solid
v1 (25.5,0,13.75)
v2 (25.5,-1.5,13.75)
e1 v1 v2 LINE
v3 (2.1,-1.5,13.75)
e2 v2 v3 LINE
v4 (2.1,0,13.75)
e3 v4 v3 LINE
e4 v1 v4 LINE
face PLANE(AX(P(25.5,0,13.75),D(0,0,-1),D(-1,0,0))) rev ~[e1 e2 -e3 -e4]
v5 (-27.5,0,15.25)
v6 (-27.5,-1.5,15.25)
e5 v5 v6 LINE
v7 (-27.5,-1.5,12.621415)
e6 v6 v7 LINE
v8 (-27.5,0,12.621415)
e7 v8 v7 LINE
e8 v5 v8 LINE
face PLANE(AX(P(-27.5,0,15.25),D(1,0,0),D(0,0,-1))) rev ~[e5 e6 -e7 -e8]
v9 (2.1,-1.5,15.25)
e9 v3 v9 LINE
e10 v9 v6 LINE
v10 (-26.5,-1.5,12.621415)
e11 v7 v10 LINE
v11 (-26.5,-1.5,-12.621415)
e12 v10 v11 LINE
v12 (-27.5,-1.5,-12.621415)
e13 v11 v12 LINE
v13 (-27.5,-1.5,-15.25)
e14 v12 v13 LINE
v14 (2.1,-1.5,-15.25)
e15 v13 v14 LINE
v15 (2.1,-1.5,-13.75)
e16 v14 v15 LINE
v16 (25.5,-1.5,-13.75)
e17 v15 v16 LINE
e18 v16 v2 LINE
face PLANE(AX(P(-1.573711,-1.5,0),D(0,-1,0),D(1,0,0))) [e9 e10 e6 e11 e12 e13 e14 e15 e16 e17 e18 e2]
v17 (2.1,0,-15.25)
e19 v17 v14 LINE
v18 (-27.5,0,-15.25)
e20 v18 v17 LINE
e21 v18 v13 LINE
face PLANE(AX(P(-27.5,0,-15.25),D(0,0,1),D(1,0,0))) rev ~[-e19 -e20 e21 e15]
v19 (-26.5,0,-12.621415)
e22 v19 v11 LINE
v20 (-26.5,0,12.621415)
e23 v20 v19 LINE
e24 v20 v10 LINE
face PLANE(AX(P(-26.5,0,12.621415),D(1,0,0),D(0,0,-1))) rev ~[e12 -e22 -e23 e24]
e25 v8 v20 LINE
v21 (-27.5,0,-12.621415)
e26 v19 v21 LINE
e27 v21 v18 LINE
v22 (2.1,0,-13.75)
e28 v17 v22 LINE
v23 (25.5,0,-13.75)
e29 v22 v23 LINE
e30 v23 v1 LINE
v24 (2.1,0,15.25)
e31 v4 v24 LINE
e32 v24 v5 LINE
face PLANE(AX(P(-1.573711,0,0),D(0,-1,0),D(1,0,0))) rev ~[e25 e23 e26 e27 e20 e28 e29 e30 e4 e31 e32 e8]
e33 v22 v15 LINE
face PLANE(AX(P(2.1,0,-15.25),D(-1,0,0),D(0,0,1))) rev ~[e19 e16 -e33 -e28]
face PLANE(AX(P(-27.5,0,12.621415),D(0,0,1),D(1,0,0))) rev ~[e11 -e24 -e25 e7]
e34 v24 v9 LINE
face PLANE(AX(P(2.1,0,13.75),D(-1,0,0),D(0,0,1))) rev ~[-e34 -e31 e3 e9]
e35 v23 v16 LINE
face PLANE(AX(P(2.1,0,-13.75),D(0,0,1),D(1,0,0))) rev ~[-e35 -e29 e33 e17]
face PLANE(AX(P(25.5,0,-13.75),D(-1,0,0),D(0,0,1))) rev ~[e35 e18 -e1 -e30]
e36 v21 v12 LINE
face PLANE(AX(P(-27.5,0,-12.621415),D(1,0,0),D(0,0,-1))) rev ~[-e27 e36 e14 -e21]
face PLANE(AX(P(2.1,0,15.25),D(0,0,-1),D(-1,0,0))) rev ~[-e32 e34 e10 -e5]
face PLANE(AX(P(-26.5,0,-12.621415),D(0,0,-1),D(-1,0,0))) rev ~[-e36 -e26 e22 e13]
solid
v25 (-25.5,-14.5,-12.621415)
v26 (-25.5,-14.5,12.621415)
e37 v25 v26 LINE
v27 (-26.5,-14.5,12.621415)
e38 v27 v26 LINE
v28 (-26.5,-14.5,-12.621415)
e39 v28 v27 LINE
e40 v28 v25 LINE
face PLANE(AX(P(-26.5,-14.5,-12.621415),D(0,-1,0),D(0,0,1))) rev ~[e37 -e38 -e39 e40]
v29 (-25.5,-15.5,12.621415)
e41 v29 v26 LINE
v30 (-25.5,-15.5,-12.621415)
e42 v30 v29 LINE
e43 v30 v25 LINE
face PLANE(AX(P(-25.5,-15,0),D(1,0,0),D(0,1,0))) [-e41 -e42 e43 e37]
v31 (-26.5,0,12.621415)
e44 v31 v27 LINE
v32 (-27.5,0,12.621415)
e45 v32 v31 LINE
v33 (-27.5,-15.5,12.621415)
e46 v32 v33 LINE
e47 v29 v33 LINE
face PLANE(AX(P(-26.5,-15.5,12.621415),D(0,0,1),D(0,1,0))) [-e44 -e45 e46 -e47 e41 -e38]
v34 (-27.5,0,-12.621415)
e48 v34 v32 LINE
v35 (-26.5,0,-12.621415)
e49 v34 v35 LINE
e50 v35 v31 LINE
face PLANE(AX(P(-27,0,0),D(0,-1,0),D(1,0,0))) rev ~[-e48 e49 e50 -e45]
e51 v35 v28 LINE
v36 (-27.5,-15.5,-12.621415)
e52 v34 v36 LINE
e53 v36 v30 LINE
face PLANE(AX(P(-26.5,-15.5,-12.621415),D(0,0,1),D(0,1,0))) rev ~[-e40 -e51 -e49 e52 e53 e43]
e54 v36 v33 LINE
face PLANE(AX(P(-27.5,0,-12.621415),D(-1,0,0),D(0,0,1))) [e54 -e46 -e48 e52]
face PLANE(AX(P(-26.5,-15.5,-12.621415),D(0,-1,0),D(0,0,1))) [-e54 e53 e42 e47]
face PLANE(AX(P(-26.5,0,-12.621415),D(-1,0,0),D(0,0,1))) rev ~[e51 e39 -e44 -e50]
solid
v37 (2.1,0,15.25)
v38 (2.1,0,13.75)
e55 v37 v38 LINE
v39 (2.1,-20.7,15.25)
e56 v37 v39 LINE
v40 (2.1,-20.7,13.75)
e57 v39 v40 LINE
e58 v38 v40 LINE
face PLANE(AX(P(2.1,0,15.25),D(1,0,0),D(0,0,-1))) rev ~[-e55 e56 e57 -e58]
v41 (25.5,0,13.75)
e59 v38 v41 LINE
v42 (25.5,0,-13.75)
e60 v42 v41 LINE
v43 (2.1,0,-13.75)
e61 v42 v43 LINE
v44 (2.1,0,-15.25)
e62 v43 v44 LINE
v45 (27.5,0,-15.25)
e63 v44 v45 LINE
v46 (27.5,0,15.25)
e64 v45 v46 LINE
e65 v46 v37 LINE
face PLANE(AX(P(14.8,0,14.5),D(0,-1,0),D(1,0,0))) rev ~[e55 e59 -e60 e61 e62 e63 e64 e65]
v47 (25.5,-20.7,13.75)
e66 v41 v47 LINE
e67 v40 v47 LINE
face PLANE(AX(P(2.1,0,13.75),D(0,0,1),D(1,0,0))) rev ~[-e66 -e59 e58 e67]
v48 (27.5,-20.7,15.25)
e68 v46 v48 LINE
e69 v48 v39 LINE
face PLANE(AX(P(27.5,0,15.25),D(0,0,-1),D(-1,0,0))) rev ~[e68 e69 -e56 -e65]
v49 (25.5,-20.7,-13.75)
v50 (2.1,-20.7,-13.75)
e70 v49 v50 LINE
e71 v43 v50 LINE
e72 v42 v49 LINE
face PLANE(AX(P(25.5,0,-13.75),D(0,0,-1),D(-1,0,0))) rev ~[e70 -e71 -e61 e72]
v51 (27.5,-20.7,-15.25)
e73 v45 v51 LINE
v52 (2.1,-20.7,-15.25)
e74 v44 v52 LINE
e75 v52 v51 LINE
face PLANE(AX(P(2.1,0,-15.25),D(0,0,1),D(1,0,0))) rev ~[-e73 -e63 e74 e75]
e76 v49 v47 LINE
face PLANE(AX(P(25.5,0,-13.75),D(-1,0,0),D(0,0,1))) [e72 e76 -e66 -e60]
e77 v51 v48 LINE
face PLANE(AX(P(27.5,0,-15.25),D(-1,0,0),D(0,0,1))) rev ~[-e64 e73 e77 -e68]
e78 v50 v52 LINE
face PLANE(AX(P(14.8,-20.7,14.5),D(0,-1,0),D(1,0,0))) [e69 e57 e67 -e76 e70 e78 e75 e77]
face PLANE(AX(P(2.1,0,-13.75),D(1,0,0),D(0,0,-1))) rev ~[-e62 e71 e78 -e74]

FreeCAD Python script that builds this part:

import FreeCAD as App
import Part
import Sketcher
Q = App.Units.Quantity

doc = App.newDocument("Part")
body = doc.addObject("PartDesign::Body", "Body")

sketch1 = body.newObject("Sketcher::SketchObject", "Sketch")
sketch1.AttachmentSupport = (doc.getObject("XZ_Plane"), [""])
sketch1.MapMode = "FlatFace"
sketch1.addGeometry([
    Part.LineSegment(App.Vector(-27.5, 12.6, 0), App.Vector(-27.5, -12.6, 0)),
    Part.LineSegment(App.Vector(-27.5, -12.6, 0), App.Vector(-26.5, -12.6, 0)),
    Part.LineSegment(App.Vector(-26.5, -12.6, 0), App.Vector(-26.5, 12.6, 0)),
    Part.LineSegment(App.Vector(-26.5, 12.6, 0), App.Vector(-27.5, 12.6, 0)),
], False)
sketch1.addConstraint([
    Sketcher.Constraint("Coincident", 0, 2, 1, 1),
    Sketcher.Constraint("Coincident", 1, 2, 2, 1),
    Sketcher.Constraint("Coincident", 2, 2, 3, 1),
    Sketcher.Constraint("Coincident", 3, 2, 0, 1),
    Sketcher.Constraint("Vertical", 0),
    Sketcher.Constraint("Horizontal", 1),
    Sketcher.Constraint("Vertical", 2),
    Sketcher.Constraint("Horizontal", 3),
    Sketcher.Constraint("DistanceX", 1, 1, 1, 2, Q("1 mm")),
    Sketcher.Constraint("DistanceX", 0, 2, -1, 1, Q("27.5 mm")),
    Sketcher.Constraint("DistanceY", 0, 2, 0, 1, Q("25.24283 mm")),
    Sketcher.Constraint("DistanceY", 0, 2, -1, 1, Q("12.621415 mm")),
])
pad1 = body.newObject("PartDesign::Pad", "Pad")
pad1.Profile = sketch1
pad1.Length = 15.5

sketch2 = body.newObject("Sketcher::SketchObject", "Sketch001")
sketch2.AttachmentSupport = (doc.getObject("YZ_Plane"), [""])
sketch2.MapMode = "FlatFace"
sketch2.AttachmentOffset = App.Placement(App.Vector(0, 0, -26.5), App.Rotation())
sketch2.addGeometry([
    Part.LineSegment(App.Vector(-15.5, 12.6, 0), App.Vector(-15.5, -12.6, 0)),
    Part.LineSegment(App.Vector(-15.5, -12.6, 0), App.Vector(-14.5, -12.6, 0)),
    Part.LineSegment(App.Vector(-14.5, -12.6, 0), App.Vector(-14.5, 12.6, 0)),
    Part.LineSegment(App.Vector(-14.5, 12.6, 0), App.Vector(-15.5, 12.6, 0)),
], False)
sketch2.addConstraint([
    Sketcher.Constraint("Coincident", 0, 2, 1, 1),
    Sketcher.Constraint("Coincident", 1, 2, 2, 1),
    Sketcher.Constraint("Coincident", 2, 2, 3, 1),
    Sketcher.Constraint("Coincident", 3, 2, 0, 1),
    Sketcher.Constraint("Vertical", 0),
    Sketcher.Constraint("Horizontal", 1),
    Sketcher.Constraint("Vertical", 2),
    Sketcher.Constraint("Horizontal", 3),
    Sketcher.Constraint("DistanceX", 1, 1, 1, 2, Q("1 mm")),
    Sketcher.Constraint("DistanceX", 0, 2, -1, 1, Q("15.5 mm")),
    Sketcher.Constraint("DistanceY", 0, 2, 0, 1, Q("25.24283 mm")),
    Sketcher.Constraint("DistanceY", 0, 2, -1, 1, Q("12.621415 mm")),
])
pad2 = body.newObject("PartDesign::Pad", "Pad001")
pad2.Profile = sketch2
pad2.Length = 1
body2 = doc.addObject("PartDesign::Body", "Body001")

sketch3 = body2.newObject("Sketcher::SketchObject", "Sketch002")
sketch3.AttachmentSupport = (doc.getObject("XZ_Plane001"), [""])
sketch3.MapMode = "FlatFace"
sketch3.addGeometry([
    Part.LineSegment(App.Vector(27.5, 15.2, 0), App.Vector(2.1, 15.2, 0)),
    Part.LineSegment(App.Vector(2.1, 15.2, 0), App.Vector(2.1, 13.8, 0)),
    Part.LineSegment(App.Vector(2.1, 13.8, 0), App.Vector(25.5, 13.8, 0)),
    Part.LineSegment(App.Vector(25.5, 13.8, 0), App.Vector(25.5, -13.8, 0)),
    Part.LineSegment(App.Vector(25.5, -13.8, 0), App.Vector(2.1, -13.8, 0)),
    Part.LineSegment(App.Vector(2.1, -13.8, 0), App.Vector(2.1, -15.2, 0)),
    Part.LineSegment(App.Vector(2.1, -15.2, 0), App.Vector(27.5, -15.2, 0)),
    Part.LineSegment(App.Vector(27.5, -15.2, 0), App.Vector(27.5, 15.2, 0)),
], False)
sketch3.addConstraint([
    Sketcher.Constraint("Coincident", 0, 2, 1, 1),
    Sketcher.Constraint("Coincident", 1, 2, 2, 1),
    Sketcher.Constraint("Coincident", 2, 2, 3, 1),
    Sketcher.Constraint("Coincident", 3, 2, 4, 1),
    Sketcher.Constraint("Coincident", 4, 2, 5, 1),
    Sketcher.Constraint("Coincident", 5, 2, 6, 1),
    Sketcher.Constraint("Coincident", 6, 2, 7, 1),
    Sketcher.Constraint("Coincident", 7, 2, 0, 1),
    Sketcher.Constraint("Horizontal", 0),
    Sketcher.Constraint("Vertical", 1),
    Sketcher.Constraint("Horizontal", 2),
    Sketcher.Constraint("Vertical", 3),
    Sketcher.Constraint("Horizontal", 4),
    Sketcher.Constraint("Vertical", 5),
    Sketcher.Constraint("Horizontal", 6),
    Sketcher.Constraint("Vertical", 7),
    Sketcher.Constraint("Symmetric", 1, 2, 4, 2, -1),
    Sketcher.Constraint("Equal", 1, 5),
    Sketcher.Constraint("DistanceX", 0, 2, 0, 1, Q("25.4 mm")),
    Sketcher.Constraint("DistanceX", 2, 1, 2, 2, Q("23.4 mm")),
    Sketcher.Constraint("DistanceY", 1, 2, 1, 1, Q("1.5 mm")),
    Sketcher.Constraint("DistanceY", 3, 2, 3, 1, Q("27.5 mm")),
    Sketcher.Constraint("DistanceX", -1, 1, 0, 2, Q("2.1 mm")),
])
pad3 = body2.newObject("PartDesign::Pad", "Pad002")
pad3.Profile = sketch3
pad3.Length = 20.7
body3 = doc.addObject("PartDesign::Body", "Body002")

sketch4 = body3.newObject("Sketcher::SketchObject", "Sketch003")
sketch4.AttachmentSupport = (doc.getObject("XZ_Plane002"), [""])
sketch4.MapMode = "FlatFace"
sketch4.addGeometry([
    Part.LineSegment(App.Vector(-27.5, -15.2, 0), App.Vector(2.1, -15.2, 0)),
    Part.LineSegment(App.Vector(2.1, -15.2, 0), App.Vector(2.1, -13.8, 0)),
    Part.LineSegment(App.Vector(2.1, -13.8, 0), App.Vector(25.5, -13.8, 0)),
    Part.LineSegment(App.Vector(25.5, -13.8, 0), App.Vector(25.5, 13.8, 0)),
    Part.LineSegment(App.Vector(25.5, 13.8, 0), App.Vector(2.1, 13.8, 0)),
    Part.LineSegment(App.Vector(2.1, 13.8, 0), App.Vector(2.1, 15.2, 0)),
    Part.LineSegment(App.Vector(2.1, 15.2, 0), App.Vector(-27.5, 15.2, 0)),
    Part.LineSegment(App.Vector(-27.5, 15.2, 0), App.Vector(-27.5, 12.6, 0)),
    Part.LineSegment(App.Vector(-27.5, 12.6, 0), App.Vector(-26.5, 12.6, 0)),
    Part.LineSegment(App.Vector(-26.5, 12.6, 0), App.Vector(-26.5, -12.6, 0)),
    Part.LineSegment(App.Vector(-26.5, -12.6, 0), App.Vector(-27.5, -12.6, 0)),
    Part.LineSegment(App.Vector(-27.5, -12.6, 0), App.Vector(-27.5, -15.2, 0)),
], False)
sketch4.addConstraint([
    Sketcher.Constraint("Coincident", 0, 2, 1, 1),
    Sketcher.Constraint("Coincident", 1, 2, 2, 1),
    Sketcher.Constraint("Coincident", 2, 2, 3, 1),
    Sketcher.Constraint("Coincident", 3, 2, 4, 1),
    Sketcher.Constraint("Coincident", 4, 2, 5, 1),
    Sketcher.Constraint("Coincident", 5, 2, 6, 1),
    Sketcher.Constraint("Coincident", 6, 2, 7, 1),
    Sketcher.Constraint("Coincident", 7, 2, 8, 1),
    Sketcher.Constraint("Coincident", 8, 2, 9, 1),
    Sketcher.Constraint("Coincident", 9, 2, 10, 1),
    Sketcher.Constraint("Coincident", 10, 2, 11, 1),
    Sketcher.Constraint("Coincident", 11, 2, 0, 1),
    Sketcher.Constraint("Horizontal", 0),
    Sketcher.Constraint("Vertical", 1),
    Sketcher.Constraint("Horizontal", 2),
    Sketcher.Constraint("Vertical", 3),
    Sketcher.Constraint("Horizontal", 4),
    Sketcher.Constraint("Vertical", 5),
    Sketcher.Constraint("Horizontal", 6),
    Sketcher.Constraint("Vertical", 7),
    Sketcher.Constraint("Horizontal", 8),
    Sketcher.Constraint("Vertical", 9),
    Sketcher.Constraint("Horizontal", 10),
    Sketcher.Constraint("Vertical", 11),
    Sketcher.Constraint("Symmetric", 1, 2, 4, 2, -1),
    Sketcher.Constraint("Symmetric", 7, 2, 10, 2, -1),
    Sketcher.Constraint("Equal", 1, 5),
    Sketcher.Constraint("DistanceX", 8, 1, 8, 2, Q("1 mm")),
    Sketcher.Constraint("DistanceX", 0, 1, 0, 2, Q("29.6 mm")),
    Sketcher.Constraint("DistanceX", 2, 1, 2, 2, Q("23.4 mm")),
    Sketcher.Constraint("DistanceY", 1, 1, 1, 2, Q("1.5 mm")),
    Sketcher.Constraint("DistanceY", 3, 1, 3, 2, Q("27.5 mm")),
    Sketcher.Constraint("DistanceX", -1, 1, 0, 2, Q("2.1 mm")),
    Sketcher.Constraint("DistanceY", 9, 2, 9, 1, Q("25.24283 mm")),
])
pad4 = body3.newObject("PartDesign::Pad", "Pad003")
pad4.Profile = sketch4
pad4.Length = 1.5

doc.recompute()
